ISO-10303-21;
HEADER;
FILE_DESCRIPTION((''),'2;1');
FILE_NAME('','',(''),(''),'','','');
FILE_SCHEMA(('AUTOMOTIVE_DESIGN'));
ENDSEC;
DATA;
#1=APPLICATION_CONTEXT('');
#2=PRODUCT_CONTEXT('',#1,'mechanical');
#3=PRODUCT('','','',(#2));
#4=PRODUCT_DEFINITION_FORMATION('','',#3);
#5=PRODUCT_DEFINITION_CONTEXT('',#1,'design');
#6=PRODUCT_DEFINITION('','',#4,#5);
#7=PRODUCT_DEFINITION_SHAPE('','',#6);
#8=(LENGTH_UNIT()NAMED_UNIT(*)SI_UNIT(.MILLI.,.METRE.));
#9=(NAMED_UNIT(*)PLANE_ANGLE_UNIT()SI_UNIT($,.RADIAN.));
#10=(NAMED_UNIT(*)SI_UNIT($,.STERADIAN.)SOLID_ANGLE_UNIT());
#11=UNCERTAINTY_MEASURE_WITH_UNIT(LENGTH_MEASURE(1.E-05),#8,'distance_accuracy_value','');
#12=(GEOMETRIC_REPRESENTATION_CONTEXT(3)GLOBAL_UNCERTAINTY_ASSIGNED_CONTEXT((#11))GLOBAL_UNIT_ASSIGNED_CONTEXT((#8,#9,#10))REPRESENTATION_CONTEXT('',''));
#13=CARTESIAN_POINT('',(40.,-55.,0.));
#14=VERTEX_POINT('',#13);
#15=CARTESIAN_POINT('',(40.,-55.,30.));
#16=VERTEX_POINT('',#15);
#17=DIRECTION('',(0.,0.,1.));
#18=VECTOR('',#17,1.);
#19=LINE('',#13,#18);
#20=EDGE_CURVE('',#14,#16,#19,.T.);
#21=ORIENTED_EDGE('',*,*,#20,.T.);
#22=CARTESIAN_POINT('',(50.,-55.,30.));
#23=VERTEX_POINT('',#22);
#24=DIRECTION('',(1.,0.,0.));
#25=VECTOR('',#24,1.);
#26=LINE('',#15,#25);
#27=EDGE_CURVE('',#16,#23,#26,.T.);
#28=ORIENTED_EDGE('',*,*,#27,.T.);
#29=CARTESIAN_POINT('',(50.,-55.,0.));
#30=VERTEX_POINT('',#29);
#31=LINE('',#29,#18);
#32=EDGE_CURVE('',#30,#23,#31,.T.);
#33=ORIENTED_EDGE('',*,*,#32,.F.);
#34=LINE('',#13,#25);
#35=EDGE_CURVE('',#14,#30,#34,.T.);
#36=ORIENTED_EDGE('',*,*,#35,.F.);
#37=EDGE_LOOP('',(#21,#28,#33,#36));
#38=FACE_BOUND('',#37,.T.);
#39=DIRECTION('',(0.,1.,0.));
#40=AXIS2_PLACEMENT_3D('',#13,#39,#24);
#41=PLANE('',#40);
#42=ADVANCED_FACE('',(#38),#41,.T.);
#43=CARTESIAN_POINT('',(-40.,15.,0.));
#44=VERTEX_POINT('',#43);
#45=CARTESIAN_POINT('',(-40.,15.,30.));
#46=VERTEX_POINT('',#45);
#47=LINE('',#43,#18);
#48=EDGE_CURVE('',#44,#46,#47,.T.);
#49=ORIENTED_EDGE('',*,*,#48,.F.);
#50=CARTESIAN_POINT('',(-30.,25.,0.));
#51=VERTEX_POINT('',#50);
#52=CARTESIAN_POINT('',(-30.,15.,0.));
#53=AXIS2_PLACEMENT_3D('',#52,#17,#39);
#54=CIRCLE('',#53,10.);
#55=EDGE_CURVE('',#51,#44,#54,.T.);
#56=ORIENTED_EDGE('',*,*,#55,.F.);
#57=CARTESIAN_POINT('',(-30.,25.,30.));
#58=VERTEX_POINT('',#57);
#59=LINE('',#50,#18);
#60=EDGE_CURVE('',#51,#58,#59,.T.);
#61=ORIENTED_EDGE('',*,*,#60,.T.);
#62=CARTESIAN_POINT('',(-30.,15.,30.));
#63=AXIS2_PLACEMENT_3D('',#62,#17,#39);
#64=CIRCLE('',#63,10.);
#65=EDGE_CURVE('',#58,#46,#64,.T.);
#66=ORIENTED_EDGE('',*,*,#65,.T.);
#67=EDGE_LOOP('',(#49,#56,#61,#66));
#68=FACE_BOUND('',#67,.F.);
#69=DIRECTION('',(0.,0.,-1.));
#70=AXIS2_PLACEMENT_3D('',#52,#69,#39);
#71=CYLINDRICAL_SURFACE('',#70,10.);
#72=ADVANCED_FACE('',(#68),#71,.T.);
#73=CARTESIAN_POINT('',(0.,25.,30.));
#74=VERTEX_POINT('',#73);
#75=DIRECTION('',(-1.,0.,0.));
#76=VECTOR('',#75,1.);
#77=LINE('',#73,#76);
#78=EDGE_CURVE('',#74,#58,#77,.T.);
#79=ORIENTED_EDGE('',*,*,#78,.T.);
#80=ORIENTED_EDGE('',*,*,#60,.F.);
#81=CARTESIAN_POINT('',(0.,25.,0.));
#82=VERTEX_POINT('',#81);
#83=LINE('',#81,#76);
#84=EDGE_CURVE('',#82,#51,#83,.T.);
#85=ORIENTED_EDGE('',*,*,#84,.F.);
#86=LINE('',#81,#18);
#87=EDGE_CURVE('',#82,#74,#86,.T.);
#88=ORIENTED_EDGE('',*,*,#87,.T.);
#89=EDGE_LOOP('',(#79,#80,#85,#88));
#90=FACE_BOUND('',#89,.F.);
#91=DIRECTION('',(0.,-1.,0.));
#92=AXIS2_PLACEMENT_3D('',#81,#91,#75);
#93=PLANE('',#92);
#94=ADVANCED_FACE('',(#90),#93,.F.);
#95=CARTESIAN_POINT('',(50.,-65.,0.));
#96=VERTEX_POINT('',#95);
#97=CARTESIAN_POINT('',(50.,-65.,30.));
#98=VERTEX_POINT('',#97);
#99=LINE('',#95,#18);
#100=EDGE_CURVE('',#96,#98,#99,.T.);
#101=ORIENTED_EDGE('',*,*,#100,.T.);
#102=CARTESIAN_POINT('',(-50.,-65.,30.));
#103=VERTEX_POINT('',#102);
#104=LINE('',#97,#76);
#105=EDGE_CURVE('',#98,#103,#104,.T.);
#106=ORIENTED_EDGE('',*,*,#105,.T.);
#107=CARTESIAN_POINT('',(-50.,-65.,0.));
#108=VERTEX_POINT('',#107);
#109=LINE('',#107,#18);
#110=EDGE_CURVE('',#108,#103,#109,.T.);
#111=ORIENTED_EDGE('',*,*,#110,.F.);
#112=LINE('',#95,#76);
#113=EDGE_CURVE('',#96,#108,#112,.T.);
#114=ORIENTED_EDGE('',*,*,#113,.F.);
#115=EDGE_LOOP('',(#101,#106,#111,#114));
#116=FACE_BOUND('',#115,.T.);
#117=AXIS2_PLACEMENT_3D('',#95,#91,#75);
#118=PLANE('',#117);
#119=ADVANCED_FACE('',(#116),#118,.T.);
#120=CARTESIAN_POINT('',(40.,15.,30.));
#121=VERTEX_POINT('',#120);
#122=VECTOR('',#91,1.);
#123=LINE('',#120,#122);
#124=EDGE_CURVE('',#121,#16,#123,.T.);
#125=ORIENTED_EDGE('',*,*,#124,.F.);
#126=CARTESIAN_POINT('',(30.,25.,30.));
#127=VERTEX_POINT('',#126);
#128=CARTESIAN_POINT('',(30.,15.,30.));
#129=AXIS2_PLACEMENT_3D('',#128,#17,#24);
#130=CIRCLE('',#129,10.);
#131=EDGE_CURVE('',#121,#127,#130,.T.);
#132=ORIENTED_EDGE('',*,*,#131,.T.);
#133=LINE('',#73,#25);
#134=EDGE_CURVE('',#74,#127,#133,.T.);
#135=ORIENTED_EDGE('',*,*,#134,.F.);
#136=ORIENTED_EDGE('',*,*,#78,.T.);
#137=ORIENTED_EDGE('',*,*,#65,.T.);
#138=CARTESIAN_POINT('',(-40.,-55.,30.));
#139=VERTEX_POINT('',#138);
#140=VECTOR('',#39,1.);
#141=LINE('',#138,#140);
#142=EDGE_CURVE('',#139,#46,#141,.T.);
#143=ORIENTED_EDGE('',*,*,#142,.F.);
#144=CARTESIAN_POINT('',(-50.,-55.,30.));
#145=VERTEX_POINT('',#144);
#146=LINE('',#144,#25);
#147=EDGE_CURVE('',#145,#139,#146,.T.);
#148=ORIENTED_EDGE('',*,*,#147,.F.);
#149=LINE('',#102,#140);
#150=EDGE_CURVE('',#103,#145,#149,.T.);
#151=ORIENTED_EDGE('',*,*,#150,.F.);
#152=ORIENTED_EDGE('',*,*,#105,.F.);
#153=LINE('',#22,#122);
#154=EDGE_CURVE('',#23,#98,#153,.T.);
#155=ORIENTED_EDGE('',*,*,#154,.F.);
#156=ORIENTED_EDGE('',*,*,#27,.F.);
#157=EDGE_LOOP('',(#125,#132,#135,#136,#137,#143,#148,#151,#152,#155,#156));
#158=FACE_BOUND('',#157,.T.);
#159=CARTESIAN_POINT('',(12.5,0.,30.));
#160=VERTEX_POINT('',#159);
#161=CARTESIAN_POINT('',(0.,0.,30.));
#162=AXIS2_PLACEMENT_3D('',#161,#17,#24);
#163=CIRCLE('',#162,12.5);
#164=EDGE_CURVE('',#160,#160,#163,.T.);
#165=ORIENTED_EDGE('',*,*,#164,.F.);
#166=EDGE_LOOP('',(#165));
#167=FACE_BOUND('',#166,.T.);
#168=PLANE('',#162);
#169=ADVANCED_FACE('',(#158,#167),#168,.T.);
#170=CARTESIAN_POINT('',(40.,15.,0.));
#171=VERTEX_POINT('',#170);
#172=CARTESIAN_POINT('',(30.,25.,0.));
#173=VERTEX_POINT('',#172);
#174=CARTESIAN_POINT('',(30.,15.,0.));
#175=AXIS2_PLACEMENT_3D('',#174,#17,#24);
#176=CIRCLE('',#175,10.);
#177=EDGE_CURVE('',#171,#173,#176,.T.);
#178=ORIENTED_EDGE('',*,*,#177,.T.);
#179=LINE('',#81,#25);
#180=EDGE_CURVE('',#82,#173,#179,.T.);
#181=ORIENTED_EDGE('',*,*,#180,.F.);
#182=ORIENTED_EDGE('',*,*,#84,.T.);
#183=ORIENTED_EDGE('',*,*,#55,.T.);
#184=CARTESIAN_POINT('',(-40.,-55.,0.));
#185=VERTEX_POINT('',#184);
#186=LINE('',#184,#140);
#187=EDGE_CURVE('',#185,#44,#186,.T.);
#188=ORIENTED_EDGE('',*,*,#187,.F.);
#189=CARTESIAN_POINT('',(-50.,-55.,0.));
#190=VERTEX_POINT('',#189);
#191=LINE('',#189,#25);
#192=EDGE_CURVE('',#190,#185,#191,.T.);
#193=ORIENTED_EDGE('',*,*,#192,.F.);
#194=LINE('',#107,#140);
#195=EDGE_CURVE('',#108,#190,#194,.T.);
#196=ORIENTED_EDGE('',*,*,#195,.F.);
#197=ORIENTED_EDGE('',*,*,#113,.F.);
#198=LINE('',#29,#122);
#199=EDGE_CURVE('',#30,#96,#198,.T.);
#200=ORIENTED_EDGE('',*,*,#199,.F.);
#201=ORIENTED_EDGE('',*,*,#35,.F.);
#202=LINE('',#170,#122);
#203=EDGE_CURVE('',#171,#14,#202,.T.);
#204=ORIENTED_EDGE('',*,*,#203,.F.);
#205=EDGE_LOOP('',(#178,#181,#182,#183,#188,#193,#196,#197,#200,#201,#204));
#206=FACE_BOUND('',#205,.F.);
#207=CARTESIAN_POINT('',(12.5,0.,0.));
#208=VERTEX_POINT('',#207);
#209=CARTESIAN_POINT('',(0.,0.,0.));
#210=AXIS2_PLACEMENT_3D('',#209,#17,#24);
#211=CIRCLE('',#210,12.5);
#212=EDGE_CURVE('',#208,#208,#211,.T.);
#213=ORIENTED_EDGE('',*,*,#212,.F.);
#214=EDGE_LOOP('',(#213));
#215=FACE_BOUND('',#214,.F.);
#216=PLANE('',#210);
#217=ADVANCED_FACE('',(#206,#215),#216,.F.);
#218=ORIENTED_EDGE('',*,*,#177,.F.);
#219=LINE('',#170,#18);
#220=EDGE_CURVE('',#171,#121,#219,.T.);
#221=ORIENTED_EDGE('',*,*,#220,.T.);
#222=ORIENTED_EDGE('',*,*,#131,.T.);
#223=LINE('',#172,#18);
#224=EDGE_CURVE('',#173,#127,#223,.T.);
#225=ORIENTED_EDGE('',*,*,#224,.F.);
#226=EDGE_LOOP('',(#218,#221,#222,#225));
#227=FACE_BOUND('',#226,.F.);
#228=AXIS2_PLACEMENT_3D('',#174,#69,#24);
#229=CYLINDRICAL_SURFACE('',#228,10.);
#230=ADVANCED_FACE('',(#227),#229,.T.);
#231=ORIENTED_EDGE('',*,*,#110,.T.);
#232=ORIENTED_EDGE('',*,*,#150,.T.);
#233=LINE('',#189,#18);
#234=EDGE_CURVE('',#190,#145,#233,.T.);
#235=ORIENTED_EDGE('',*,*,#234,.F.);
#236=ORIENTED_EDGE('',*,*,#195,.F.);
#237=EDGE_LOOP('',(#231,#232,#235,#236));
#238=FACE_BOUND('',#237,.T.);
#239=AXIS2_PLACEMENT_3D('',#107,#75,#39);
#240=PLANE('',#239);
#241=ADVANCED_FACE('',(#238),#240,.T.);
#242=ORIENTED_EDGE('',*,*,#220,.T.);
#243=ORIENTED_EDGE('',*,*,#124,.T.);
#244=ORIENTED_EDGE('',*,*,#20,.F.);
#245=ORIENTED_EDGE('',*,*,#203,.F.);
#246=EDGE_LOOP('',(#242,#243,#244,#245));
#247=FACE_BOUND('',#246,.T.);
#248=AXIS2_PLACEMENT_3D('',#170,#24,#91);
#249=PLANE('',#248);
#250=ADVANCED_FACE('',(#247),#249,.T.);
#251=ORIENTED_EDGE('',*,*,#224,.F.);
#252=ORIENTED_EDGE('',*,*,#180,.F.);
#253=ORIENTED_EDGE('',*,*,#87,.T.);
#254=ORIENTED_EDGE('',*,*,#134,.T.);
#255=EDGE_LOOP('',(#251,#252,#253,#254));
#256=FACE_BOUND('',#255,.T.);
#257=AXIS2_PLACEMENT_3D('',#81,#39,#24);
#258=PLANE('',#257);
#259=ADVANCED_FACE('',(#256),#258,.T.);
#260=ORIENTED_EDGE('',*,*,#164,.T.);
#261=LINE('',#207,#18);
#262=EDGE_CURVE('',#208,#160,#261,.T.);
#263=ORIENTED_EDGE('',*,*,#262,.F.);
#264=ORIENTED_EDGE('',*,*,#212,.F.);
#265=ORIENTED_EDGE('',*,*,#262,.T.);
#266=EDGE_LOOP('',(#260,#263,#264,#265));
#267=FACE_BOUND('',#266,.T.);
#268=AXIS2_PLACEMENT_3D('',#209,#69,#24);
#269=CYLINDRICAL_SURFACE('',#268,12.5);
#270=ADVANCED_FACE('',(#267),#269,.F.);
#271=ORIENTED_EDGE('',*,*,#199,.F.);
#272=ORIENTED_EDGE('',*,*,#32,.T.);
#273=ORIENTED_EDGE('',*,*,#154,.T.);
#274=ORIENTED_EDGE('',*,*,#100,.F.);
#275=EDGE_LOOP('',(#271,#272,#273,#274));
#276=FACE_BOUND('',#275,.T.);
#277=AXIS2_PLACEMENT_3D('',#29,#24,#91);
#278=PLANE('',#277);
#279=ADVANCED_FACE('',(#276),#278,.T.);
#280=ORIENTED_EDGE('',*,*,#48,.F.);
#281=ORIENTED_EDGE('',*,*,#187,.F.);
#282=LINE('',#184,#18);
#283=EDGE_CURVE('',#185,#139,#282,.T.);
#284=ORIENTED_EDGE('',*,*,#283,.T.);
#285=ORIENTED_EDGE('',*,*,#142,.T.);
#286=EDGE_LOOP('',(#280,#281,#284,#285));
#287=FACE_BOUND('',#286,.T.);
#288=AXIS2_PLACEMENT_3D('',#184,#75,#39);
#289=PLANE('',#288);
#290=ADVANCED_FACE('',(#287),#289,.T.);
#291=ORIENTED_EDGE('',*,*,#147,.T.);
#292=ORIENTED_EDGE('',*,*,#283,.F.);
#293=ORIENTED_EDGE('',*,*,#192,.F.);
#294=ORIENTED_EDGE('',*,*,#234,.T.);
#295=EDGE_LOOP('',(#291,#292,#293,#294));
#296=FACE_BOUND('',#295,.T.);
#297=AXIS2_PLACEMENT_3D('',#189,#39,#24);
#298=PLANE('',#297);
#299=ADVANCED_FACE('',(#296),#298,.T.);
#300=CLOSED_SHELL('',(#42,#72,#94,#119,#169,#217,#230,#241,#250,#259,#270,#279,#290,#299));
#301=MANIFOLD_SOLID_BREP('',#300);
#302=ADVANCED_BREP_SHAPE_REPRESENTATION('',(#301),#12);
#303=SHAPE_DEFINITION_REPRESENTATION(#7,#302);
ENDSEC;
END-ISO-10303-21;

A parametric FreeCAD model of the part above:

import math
import FreeCAD as App
import Part
import Sketcher

doc = App.newDocument("Part")
body = doc.addObject("PartDesign::Body", "Body")

sketch1 = body.newObject("Sketcher::SketchObject", "Sketch")
sketch1.AttachmentSupport = (doc.getObject("XY_Plane"), [""])
sketch1.MapMode = "FlatFace"
sketch1.addGeometry(Part.LineSegment(App.Vector(30, 25, 0), App.Vector(-30, 25, 0)), False)
sketch1.addGeometry(Part.ArcOfCircle(Part.Circle(App.Vector(-30, 15, 0), App.Vector(0, 0, 1), 10), math.radians(90), math.radians(180)), False)
sketch1.addGeometry(Part.LineSegment(App.Vector(-40, 15, 0), App.Vector(-40, -55, 0)), False)
sketch1.addGeometry(Part.LineSegment(App.Vector(-40, -55, 0), App.Vector(-50, -55, 0)), False)
sketch1.addGeometry(Part.LineSegment(App.Vector(-50, -55, 0), App.Vector(-50, -65, 0)), False)
sketch1.addGeometry(Part.LineSegment(App.Vector(-50, -65, 0), App.Vector(50, -65, 0)), False)
sketch1.addGeometry(Part.LineSegment(App.Vector(50, -65, 0), App.Vector(50, -55, 0)), False)
sketch1.addGeometry(Part.LineSegment(App.Vector(50, -55, 0), App.Vector(40, -55, 0)), False)
sketch1.addGeometry(Part.LineSegment(App.Vector(40, -55, 0), App.Vector(40, 15, 0)), False)
sketch1.addGeometry(Part.ArcOfCircle(Part.Circle(App.Vector(30, 15, 0), App.Vector(0, 0, 1), 10), math.radians(0), math.radians(90)), False)
sketch1.addGeometry(Part.Circle(App.Vector(0, 0, 0), App.Vector(0, 0, 1), 12), False)
sketch1.addConstraint(Sketcher.Constraint("Tangent", 0, 2, 1, 1))
sketch1.addConstraint(Sketcher.Constraint("Tangent", 1, 2, 2, 1))
sketch1.addConstraint(Sketcher.Constraint("Coincident", 2, 2, 3, 1))
sketch1.addConstraint(Sketcher.Constraint("Coincident", 3, 2, 4, 1))
sketch1.addConstraint(Sketcher.Constraint("Coincident", 4, 2, 5, 1))
sketch1.addConstraint(Sketcher.Constraint("Coincident", 5, 2, 6, 1))
sketch1.addConstraint(Sketcher.Constraint("Coincident", 6, 2, 7, 1))
sketch1.addConstraint(Sketcher.Constraint("Coincident", 7, 2, 8, 1))
sketch1.addConstraint(Sketcher.Constraint("Tangent", 8, 2, 9, 1))
sketch1.addConstraint(Sketcher.Constraint("Tangent", 9, 2, 0, 1))
sketch1.addConstraint(Sketcher.Constraint("Horizontal", 0))
sketch1.addConstraint(Sketcher.Constraint("Vertical", 2))
sketch1.addConstraint(Sketcher.Constraint("Horizontal", 3))
sketch1.addConstraint(Sketcher.Constraint("Vertical", 4))
sketch1.addConstraint(Sketcher.Constraint("Horizontal", 5))
sketch1.addConstraint(Sketcher.Constraint("Vertical", 6))
sketch1.addConstraint(Sketcher.Constraint("Horizontal", 7))
sketch1.addConstraint(Sketcher.Constraint("Vertical", 8))
sketch1.addConstraint(Sketcher.Constraint("Coincident", 10, 3, -1, 1))
sketch1.addConstraint(Sketcher.Constraint("Equal", 1, 9))
sketch1.addConstraint(Sketcher.Constraint("Symmetric", 3, 2, 6, 2, -2))
sketch1.addConstraint(Sketcher.Constraint("Equal", 3, 7))
sketch1.addConstraint(Sketcher.Constraint("Equal", 7, 4))
sketch1.addConstraint(Sketcher.Constraint("Diameter", 10, 25.0))
sketch1.addConstraint(Sketcher.Constraint("Radius", 1, 10.0))
sketch1.addConstraint(Sketcher.Constraint("DistanceX", 3, 2, 3, 1, 10.0))
sketch1.addConstraint(Sketcher.Constraint("DistanceX", 5, 1, 5, 2, 100.0))
sketch1.addConstraint(Sketcher.Constraint("DistanceY", -1, 1, 0, 2, 25.0))
sketch1.addConstraint(Sketcher.Constraint("DistanceY", 2, 2, 0, 2, 80.0))
pad1 = body.newObject("PartDesign::Pad", "Pad")
pad1.Profile = sketch1
pad1.Length = 30

doc.recompute()
